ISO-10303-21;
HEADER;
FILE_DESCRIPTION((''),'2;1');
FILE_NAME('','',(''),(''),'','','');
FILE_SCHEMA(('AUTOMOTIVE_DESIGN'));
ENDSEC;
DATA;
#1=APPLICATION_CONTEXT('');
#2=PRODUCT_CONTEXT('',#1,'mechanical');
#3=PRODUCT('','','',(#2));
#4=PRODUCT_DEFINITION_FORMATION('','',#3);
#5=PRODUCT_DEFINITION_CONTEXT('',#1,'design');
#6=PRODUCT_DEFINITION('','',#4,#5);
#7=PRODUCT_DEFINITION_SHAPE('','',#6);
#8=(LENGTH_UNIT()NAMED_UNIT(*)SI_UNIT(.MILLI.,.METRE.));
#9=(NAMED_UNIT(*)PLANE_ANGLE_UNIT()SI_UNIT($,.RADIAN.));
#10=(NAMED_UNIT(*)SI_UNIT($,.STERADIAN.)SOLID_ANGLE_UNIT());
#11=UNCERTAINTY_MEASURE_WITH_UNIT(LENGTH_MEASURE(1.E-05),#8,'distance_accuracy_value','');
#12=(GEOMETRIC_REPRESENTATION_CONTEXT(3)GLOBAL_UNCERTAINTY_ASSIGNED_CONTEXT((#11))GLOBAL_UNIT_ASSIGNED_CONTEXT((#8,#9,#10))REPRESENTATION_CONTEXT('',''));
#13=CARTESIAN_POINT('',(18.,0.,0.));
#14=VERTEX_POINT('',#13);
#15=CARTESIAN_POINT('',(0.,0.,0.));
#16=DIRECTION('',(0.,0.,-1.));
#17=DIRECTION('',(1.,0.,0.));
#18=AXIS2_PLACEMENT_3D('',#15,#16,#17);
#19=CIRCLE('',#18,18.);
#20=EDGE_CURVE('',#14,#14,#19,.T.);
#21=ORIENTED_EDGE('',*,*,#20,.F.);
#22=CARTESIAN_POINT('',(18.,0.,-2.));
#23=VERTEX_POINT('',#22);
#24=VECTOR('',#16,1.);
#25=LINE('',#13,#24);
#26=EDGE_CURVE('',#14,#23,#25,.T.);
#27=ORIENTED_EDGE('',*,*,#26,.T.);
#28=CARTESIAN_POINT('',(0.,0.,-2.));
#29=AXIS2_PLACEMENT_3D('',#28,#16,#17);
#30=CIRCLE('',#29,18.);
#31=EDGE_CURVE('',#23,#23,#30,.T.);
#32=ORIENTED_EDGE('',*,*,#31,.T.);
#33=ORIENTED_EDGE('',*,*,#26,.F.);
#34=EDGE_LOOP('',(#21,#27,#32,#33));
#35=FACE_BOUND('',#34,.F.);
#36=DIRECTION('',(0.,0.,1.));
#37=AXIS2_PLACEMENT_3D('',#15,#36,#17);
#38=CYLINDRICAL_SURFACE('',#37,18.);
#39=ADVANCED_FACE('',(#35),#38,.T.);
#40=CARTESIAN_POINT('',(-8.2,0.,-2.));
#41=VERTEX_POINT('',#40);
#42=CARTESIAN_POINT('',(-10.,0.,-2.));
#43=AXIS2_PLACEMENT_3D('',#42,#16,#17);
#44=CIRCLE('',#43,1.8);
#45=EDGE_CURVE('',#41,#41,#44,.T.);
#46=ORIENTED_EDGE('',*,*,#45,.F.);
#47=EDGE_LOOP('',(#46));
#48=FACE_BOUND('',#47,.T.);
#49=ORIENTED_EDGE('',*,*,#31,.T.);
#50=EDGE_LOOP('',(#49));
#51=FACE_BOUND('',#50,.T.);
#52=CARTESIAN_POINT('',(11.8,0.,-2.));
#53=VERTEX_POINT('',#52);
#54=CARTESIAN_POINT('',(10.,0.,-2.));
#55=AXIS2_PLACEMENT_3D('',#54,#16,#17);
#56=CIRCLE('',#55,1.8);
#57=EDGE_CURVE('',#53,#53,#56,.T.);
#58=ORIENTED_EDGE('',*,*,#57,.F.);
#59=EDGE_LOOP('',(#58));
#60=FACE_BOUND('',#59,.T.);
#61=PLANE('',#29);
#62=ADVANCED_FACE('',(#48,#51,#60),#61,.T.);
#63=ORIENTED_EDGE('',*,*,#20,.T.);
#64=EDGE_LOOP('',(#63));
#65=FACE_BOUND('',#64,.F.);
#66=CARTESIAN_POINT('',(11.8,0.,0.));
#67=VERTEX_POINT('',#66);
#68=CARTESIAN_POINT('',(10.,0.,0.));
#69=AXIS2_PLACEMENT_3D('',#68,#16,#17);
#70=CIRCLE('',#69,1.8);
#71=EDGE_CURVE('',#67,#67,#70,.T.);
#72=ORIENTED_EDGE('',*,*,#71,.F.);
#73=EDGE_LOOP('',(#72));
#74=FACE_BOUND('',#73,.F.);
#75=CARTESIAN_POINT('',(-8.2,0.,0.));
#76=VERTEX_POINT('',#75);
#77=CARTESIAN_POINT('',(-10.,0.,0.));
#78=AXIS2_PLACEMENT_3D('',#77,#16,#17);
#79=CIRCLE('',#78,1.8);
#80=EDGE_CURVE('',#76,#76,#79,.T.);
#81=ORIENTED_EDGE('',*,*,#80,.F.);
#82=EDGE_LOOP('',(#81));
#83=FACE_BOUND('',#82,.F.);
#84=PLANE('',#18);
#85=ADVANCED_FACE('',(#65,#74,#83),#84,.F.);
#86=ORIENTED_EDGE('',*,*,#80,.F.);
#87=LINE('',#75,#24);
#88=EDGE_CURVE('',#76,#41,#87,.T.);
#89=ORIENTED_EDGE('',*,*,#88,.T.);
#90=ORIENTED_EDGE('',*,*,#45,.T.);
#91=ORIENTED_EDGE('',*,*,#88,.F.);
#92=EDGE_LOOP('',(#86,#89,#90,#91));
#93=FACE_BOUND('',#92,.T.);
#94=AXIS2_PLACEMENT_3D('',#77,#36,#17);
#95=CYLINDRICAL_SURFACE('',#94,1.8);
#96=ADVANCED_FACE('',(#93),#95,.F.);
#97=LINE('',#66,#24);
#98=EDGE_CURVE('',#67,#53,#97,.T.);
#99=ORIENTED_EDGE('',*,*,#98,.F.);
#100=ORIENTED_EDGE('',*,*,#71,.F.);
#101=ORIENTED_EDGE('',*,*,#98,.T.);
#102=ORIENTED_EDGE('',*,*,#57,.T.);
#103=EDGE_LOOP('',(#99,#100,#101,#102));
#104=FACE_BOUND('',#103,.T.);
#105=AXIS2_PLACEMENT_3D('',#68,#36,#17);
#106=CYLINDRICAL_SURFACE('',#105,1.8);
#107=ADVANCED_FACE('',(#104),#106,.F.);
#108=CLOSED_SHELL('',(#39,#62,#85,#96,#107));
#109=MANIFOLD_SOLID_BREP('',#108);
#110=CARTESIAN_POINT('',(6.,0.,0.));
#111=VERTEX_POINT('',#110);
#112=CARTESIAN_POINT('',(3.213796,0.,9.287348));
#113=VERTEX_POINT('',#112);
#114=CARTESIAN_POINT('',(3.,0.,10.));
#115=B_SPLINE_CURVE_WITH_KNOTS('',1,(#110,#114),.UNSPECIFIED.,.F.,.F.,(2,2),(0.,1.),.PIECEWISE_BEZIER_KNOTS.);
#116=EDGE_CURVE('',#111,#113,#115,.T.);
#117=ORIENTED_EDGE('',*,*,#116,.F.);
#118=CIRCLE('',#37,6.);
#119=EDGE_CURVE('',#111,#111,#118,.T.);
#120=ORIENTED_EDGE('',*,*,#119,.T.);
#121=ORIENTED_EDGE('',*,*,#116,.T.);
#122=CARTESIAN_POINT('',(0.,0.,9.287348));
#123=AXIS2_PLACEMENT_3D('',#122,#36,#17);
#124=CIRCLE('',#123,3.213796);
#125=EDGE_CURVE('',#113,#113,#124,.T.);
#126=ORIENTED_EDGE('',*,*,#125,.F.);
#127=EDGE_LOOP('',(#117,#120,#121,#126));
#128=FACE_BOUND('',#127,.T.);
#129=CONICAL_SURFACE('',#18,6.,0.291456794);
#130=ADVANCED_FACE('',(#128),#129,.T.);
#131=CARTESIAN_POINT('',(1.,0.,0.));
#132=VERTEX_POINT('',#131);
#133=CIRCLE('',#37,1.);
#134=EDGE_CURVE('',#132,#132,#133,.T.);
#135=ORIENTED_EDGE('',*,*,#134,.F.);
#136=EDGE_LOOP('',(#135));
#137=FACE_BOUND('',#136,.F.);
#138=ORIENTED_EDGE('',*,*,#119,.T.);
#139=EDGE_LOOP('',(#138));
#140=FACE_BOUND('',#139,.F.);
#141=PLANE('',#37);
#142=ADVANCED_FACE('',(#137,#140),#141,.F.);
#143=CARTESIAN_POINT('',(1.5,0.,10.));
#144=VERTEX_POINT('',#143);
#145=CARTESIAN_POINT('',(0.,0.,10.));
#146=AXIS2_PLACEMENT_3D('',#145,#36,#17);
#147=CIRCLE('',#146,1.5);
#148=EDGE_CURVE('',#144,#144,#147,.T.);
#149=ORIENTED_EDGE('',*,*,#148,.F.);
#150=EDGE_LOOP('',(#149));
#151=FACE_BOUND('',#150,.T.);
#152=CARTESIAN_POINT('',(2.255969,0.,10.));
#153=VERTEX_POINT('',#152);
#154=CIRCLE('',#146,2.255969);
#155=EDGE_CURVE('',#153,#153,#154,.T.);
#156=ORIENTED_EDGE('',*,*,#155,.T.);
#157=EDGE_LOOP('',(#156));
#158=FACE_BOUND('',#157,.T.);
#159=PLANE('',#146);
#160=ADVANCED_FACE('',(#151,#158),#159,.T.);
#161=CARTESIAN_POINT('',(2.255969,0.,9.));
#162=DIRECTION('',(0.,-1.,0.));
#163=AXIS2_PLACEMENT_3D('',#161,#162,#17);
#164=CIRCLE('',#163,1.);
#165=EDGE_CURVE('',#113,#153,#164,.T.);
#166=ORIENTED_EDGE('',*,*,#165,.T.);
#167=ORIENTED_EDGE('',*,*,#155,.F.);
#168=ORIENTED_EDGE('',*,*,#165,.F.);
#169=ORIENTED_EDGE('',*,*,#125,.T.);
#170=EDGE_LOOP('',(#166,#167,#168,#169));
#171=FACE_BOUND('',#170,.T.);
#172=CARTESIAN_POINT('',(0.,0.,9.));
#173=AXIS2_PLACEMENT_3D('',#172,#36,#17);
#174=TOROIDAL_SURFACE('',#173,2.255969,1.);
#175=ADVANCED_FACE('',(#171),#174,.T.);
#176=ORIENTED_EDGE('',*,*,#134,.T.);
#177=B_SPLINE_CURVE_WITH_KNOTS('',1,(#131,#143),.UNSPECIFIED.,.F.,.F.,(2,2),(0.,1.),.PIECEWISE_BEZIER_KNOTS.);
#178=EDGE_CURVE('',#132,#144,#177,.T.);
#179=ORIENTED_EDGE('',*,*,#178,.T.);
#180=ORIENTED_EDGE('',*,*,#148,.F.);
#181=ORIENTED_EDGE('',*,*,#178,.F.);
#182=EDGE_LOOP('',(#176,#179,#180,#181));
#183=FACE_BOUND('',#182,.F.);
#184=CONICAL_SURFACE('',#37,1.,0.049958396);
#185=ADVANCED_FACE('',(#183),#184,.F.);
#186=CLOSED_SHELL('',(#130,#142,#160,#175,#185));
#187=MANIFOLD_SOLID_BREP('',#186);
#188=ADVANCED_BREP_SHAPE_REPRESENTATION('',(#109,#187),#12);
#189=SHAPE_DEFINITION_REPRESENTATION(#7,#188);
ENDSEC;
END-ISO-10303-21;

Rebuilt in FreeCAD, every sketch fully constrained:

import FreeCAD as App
import Part
import Sketcher
Q = App.Units.Quantity


def edges_at(feature, points):
    """Names of the edges that pass closest to the given points."""
    edges = feature.Shape.Edges
    near = lambda p: min(range(len(edges)), key=lambda i: edges[i].distToShape(Part.Vertex(*p))[0])
    return sorted({f"Edge{near(p) + 1}" for p in points})

doc = App.newDocument("Part")
params = doc.addObject("Spreadsheet::Sheet", "Params")
for row, (alias, value) in enumerate([
    ("sketch1_diameter", "36 mm"),
    ("sketch1_diameter2", "3.6 mm"),
    ("pad1_length", "2 mm"),
    ("sketch2_diameter", "2 mm"),
    ("sketch3_diameter", "3 mm"),
    ("sketch4_diameter", "12 mm"),
    ("sketch5_diameter", "6 mm"),
    ("fillet_radius", "1 mm"),
], start=1):
    params.set(f"A{row}", alias)
    params.set(f"B{row}", "=" + value)
    params.setAlias(f"B{row}", alias)

body = doc.addObject("PartDesign::Body", "Body")

# Sketch on XY plane
sketch1 = body.newObject("Sketcher::SketchObject", "Sketch")
sketch1.AttachmentSupport = (doc.getObject("XY_Plane"), [""])
sketch1.MapMode = "FlatFace"
sketch1.addGeometry([
    Part.Circle(App.Vector(0, 0, 0), App.Vector(0, 0, 1), 18),
    Part.Circle(App.Vector(-10, 0, 0), App.Vector(0, 0, 1), 1.8),
    Part.Circle(App.Vector(10, 0, 0), App.Vector(0, 0, 1), 1.8),
], False)
sketch1.addConstraint([
    Sketcher.Constraint("Coincident", 0, 3, -1, 1),
    Sketcher.Constraint("Equal", 1, 2),
    Sketcher.Constraint("Symmetric", 1, 3, 2, 3, -1, 1),
    Sketcher.Constraint("PointOnObject", 1, 3, -1),
    Sketcher.Constraint("Diameter", 0, Q("36 mm")),
    Sketcher.Constraint("Diameter", 1, Q("3.6 mm")),
    Sketcher.Constraint("DistanceX", 1, 3, -1, 1, Q("10 mm")),
])
sketch1.setExpression("Constraints[4]", "Params.sketch1_diameter")
sketch1.setExpression("Constraints[5]", "Params.sketch1_diameter2")
pad1 = body.newObject("PartDesign::Pad", "Pad")
pad1.Profile = sketch1
pad1.setExpression("Length", "Params.pad1_length")
pad1.Reversed = True
body2 = doc.addObject("PartDesign::Body", "Body001")

# Sketch on XY plane
sketch2 = body2.newObject("Sketcher::SketchObject", "Sketch001")
sketch2.AttachmentSupport = (doc.getObject("XY_Plane001"), [""])
sketch2.MapMode = "FlatFace"
sketch2.addGeometry(Part.Circle(App.Vector(0, 0, 0), App.Vector(0, 0, 1), 1), False)
sketch2.addConstraint([
    Sketcher.Constraint("Coincident", 0, 3, -1, 1),
    Sketcher.Constraint("Diameter", 0, Q("2 mm")),
])
sketch2.setExpression("Constraints[1]", "Params.sketch2_diameter")

# Sketch on XY plane
sketch3 = body2.newObject("Sketcher::SketchObject", "Sketch002")
sketch3.AttachmentSupport = (doc.getObject("XY_Plane001"), [""])
sketch3.MapMode = "FlatFace"
sketch3.AttachmentOffset = App.Placement(App.Vector(0, 0, 10), App.Rotation())
sketch3.addGeometry(Part.Circle(App.Vector(0, 0, 0), App.Vector(0, 0, 1), 1.5), False)
sketch3.addConstraint([
    Sketcher.Constraint("Coincident", 0, 3, -1, 1),
    Sketcher.Constraint("Diameter", 0, Q("3 mm")),
])
sketch3.setExpression("Constraints[1]", "Params.sketch3_diameter")

additiveloft = body2.newObject("PartDesign::AdditiveLoft", "AdditiveLoft")
additiveloft.Profile = sketch2
additiveloft.Sections = [sketch3]
body3 = doc.addObject("PartDesign::Body", "Body002")

# Sketch on XY plane
sketch4 = body3.newObject("Sketcher::SketchObject", "Sketch003")
sketch4.AttachmentSupport = (doc.getObject("XY_Plane002"), [""])
sketch4.MapMode = "FlatFace"
sketch4.addGeometry(Part.Circle(App.Vector(0, 0, 0), App.Vector(0, 0, 1), 6), False)
sketch4.addConstraint([
    Sketcher.Constraint("Coincident", 0, 3, -1, 1),
    Sketcher.Constraint("Diameter", 0, Q("12 mm")),
])
sketch4.setExpression("Constraints[1]", "Params.sketch4_diameter")

# Sketch on XY plane
sketch5 = body3.newObject("Sketcher::SketchObject", "Sketch004")
sketch5.AttachmentSupport = (doc.getObject("XY_Plane002"), [""])
sketch5.MapMode = "FlatFace"
sketch5.AttachmentOffset = App.Placement(App.Vector(0, 0, 10), App.Rotation())
sketch5.addGeometry(Part.Circle(App.Vector(0, 0, 0), App.Vector(0, 0, 1), 3), False)
sketch5.addConstraint([
    Sketcher.Constraint("Coincident", 0, 3, -1, 1),
    Sketcher.Constraint("Diameter", 0, Q("6 mm")),
])
sketch5.setExpression("Constraints[1]", "Params.sketch5_diameter")

additiveloft2 = body3.newObject("PartDesign::AdditiveLoft", "AdditiveLoft001")
additiveloft2.Profile = sketch4
additiveloft2.Sections = [sketch5]
doc.recompute()

boolean = body3.newObject("PartDesign::Boolean", "Boolean")
boolean.Type = "Cut"
boolean.addObjects([body2])
doc.recompute()

fillet = body3.newObject("PartDesign::Fillet", "Fillet")
fillet.Base = (boolean, edges_at(boolean, [(-3, 0, 10)]))
fillet.setExpression("Radius", "Params.fillet_radius")

doc.recompute()
